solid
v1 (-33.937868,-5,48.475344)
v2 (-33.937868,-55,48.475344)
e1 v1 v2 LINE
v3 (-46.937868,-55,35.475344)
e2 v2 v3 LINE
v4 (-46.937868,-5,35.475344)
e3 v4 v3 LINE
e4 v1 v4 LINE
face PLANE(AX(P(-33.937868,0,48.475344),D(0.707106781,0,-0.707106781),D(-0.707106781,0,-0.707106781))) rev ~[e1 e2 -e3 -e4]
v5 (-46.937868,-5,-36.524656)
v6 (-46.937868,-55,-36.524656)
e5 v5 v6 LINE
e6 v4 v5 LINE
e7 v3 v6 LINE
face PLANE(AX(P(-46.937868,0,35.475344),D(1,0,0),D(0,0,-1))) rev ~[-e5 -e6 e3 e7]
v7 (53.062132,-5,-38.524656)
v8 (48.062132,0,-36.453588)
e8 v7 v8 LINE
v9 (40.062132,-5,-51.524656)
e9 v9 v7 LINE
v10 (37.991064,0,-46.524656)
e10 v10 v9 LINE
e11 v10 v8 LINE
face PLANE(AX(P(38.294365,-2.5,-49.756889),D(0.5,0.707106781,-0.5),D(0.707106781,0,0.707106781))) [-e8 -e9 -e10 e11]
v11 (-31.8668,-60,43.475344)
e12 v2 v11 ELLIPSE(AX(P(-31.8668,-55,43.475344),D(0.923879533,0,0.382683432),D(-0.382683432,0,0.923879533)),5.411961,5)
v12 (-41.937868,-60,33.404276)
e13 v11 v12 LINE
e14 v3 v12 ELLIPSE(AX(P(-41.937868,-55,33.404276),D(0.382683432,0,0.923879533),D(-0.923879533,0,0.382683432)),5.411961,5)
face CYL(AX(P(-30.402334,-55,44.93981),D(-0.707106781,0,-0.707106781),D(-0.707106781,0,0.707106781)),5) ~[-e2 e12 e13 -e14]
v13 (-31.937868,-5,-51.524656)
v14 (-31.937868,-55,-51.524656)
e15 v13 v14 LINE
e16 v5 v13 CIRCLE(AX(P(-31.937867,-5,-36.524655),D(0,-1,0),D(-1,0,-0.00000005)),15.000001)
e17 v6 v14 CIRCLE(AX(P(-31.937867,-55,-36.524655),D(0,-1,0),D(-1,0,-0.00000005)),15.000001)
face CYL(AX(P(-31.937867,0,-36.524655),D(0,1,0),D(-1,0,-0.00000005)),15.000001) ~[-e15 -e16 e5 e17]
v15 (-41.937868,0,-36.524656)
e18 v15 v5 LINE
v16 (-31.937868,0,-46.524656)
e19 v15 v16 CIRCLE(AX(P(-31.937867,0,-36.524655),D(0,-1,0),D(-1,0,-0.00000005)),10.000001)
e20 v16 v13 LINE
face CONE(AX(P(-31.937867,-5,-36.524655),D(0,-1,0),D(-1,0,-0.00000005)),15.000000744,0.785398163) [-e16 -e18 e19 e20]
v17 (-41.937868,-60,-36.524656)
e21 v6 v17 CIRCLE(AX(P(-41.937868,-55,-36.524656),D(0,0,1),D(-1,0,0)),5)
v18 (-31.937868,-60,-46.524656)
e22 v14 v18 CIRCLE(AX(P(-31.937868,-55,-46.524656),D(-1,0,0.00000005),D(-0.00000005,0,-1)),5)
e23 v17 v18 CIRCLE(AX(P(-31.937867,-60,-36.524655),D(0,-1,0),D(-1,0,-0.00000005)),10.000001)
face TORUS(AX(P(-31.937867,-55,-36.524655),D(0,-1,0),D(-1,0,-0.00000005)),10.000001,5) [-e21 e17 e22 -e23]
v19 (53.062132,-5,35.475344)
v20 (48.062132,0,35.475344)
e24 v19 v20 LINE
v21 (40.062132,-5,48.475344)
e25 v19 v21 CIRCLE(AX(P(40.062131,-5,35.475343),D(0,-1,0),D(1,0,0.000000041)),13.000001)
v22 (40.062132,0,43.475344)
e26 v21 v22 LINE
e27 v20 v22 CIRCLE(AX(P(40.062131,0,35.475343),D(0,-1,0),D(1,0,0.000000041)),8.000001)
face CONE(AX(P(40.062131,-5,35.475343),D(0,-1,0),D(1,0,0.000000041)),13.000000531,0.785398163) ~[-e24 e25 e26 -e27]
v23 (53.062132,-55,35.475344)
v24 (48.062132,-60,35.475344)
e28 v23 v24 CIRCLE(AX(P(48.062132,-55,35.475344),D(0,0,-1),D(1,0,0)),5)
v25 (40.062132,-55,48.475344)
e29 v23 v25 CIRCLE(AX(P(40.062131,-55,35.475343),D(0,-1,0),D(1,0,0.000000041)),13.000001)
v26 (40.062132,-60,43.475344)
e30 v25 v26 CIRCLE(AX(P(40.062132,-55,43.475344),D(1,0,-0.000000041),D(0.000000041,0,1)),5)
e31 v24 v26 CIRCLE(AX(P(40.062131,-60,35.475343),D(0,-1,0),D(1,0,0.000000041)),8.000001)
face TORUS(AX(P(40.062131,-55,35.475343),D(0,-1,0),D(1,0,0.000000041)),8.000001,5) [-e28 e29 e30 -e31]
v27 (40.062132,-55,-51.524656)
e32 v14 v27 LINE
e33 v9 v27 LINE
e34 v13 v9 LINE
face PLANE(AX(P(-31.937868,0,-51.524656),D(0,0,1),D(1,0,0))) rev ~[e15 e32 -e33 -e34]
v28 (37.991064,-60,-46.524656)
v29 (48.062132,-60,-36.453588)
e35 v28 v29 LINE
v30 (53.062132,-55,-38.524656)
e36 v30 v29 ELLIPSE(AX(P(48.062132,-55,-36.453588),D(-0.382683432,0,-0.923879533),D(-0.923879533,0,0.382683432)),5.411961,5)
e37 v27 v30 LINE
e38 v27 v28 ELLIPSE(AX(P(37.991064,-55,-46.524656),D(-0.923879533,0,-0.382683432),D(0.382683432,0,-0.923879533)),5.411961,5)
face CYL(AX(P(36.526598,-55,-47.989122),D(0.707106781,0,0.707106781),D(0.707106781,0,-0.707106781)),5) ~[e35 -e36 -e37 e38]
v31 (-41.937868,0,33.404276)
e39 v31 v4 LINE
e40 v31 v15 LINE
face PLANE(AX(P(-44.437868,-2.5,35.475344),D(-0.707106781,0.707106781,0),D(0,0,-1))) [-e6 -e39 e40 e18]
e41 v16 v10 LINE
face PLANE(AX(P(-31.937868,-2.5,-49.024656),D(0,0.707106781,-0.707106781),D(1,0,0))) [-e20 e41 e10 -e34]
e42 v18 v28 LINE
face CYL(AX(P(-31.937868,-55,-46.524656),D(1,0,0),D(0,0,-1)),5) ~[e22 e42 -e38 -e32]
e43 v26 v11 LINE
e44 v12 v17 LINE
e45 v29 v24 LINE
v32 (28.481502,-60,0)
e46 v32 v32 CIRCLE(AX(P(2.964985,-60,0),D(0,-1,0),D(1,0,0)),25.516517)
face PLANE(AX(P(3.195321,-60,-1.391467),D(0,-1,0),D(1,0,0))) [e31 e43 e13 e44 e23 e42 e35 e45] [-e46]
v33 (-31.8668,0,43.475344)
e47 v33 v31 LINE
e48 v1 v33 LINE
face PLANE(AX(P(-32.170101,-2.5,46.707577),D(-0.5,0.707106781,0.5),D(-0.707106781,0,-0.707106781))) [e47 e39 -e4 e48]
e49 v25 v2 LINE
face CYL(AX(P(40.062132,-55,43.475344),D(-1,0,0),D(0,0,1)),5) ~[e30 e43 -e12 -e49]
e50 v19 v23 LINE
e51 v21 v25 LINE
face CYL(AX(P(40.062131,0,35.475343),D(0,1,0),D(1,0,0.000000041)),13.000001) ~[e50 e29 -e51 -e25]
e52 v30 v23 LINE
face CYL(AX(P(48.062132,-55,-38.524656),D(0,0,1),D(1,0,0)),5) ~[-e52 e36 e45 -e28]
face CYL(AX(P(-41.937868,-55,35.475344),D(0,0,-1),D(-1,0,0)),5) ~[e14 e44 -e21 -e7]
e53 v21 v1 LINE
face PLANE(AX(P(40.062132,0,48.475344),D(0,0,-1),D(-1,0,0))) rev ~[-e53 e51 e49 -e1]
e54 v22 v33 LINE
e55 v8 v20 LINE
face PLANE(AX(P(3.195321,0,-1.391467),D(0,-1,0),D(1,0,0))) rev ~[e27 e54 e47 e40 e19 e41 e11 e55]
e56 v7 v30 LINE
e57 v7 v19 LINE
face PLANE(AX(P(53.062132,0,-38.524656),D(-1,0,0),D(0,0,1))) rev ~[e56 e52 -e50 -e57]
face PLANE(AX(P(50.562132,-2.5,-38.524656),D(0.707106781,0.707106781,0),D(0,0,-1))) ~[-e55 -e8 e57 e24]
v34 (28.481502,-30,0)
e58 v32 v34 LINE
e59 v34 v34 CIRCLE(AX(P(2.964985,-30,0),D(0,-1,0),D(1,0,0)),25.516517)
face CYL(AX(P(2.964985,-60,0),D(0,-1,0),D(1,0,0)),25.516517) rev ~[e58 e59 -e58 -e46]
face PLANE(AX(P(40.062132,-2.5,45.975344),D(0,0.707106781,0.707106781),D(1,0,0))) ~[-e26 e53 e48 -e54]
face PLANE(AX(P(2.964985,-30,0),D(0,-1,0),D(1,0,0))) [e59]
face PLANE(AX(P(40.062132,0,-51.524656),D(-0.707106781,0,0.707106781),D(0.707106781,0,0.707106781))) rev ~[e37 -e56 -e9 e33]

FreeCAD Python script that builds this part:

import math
import FreeCAD as App
import Part
import Sketcher
Q = App.Units.Quantity


def edges_at(feature, points):
    """Names of the edges that pass closest to the given points."""
    edges = feature.Shape.Edges
    near = lambda p: min(range(len(edges)), key=lambda i: edges[i].distToShape(Part.Vertex(*p))[0])
    return sorted({f"Edge{near(p) + 1}" for p in points})

doc = App.newDocument("Part")
body = doc.addObject("PartDesign::Body", "Body")

sketch1 = doc.addObject("Sketcher::SketchObject", "Sketch")
body.addObject(sketch1)
sketch1.AttachmentSupport = (doc.XZ_Plane, [""])
sketch1.MapMode = "FlatFace"
sketch1.addGeometry([
    Part.LineSegment(App.Vector(40, 48, 0), App.Vector(-34, 48, 0)),
    Part.LineSegment(App.Vector(-34, 48, 0), App.Vector(-47, 35, 0)),
    Part.LineSegment(App.Vector(-47, 35, 0), App.Vector(-47, -37, 0)),
    Part.ArcOfCircle(Part.Circle(App.Vector(-32, -37, 0), App.Vector(0, 0, 1), 15), math.radians(-180), math.radians(-90)),
    Part.LineSegment(App.Vector(-32, -52, 0), App.Vector(40, -52, 0)),
    Part.LineSegment(App.Vector(40, -52, 0), App.Vector(53, -39, 0)),
    Part.LineSegment(App.Vector(53, -39, 0), App.Vector(53, 35, 0)),
    Part.ArcOfCircle(Part.Circle(App.Vector(40, 35, 0), App.Vector(0, 0, 1), 13), math.radians(0), math.radians(90)),
], False)
sketch1.addConstraint([
    Sketcher.Constraint("Coincident", 0, 2, 1, 1),
    Sketcher.Constraint("Coincident", 1, 2, 2, 1),
    Sketcher.Constraint("Tangent", 2, 2, 3, 1),
    Sketcher.Constraint("Tangent", 3, 2, 4, 1),
    Sketcher.Constraint("Coincident", 4, 2, 5, 1),
    Sketcher.Constraint("Coincident", 5, 2, 6, 1),
    Sketcher.Constraint("Tangent", 6, 2, 7, 1),
    Sketcher.Constraint("Tangent", 7, 2, 0, 1),
    Sketcher.Constraint("Horizontal", 0),
    Sketcher.Constraint("Vertical", 2),
    Sketcher.Constraint("Horizontal", 4),
    Sketcher.Constraint("Vertical", 6),
    Sketcher.Constraint("Parallel", 1, 5),
    Sketcher.Constraint("Horizontal", 7, 3, 1, 2),
    Sketcher.Constraint("Vertical", 7, 3, 4, 2),
    Sketcher.Constraint("Equal", 4, 2),
    Sketcher.Constraint("Equal", 0, 6),
    Sketcher.Constraint("Radius", 3, Q("15.000001 mm")),
    Sketcher.Constraint("Radius", 7, Q("13.000001 mm")),
    Sketcher.Constraint("DistanceX", 0, 2, 0, 1, Q("74 mm")),
    Sketcher.Constraint("DistanceX", -1, 1, 7, 3, Q("40.062131 mm")),
    Sketcher.Constraint("DistanceY", 3, 3, -1, 1, Q("36.524655 mm")),
])
pad1 = doc.addObject("PartDesign::Pad", "Pad")
body.addObject(pad1)
pad1.Profile = sketch1
pad1.Length = 60
doc.recompute()

fillet = doc.addObject("PartDesign::Fillet", "Fillet")
body.addObject(fillet)
fillet.Base = (pad1, edges_at(pad1, [
    (3.062, -60, 48.475),
    (-40.438, -60, 41.975),
    (-46.938, -60, -0.525),
    (-42.544, -60, -47.131),
    (4.062, -60, -51.525),
    (46.562, -60, -45.025),
    (53.062, -60, -1.525),
    (49.255, -60, 44.668),
]))
fillet.Radius = 5
doc.recompute()

chamfer = doc.addObject("PartDesign::Chamfer", "Chamfer")
body.addObject(chamfer)
chamfer.Base = (fillet, edges_at(fillet, [
    (3.062, 0, 48.475),
    (-40.438, 0, 41.975),
    (-46.938, 0, -0.525),
    (-42.544, 0, -47.131),
    (4.062, 0, -51.525),
    (46.562, 0, -45.025),
    (53.062, 0, -1.525),
    (49.255, 0, 44.668),
]))
chamfer.Size = 5

sketch2 = doc.addObject("Sketcher::SketchObject", "Sketch001")
body.addObject(sketch2)
sketch2.AttachmentSupport = (doc.XZ_Plane, [""])
sketch2.MapMode = "FlatFace"
sketch2.AttachmentOffset = App.Placement(App.Vector(0, 0, 60), App.Rotation())
sketch2.addGeometry(Part.Circle(App.Vector(3, 0, 0), App.Vector(0, 0, 1), 26), False)
sketch2.addConstraint([
    Sketcher.Constraint("PointOnObject", 0, 3, -1),
    Sketcher.Constraint("Diameter", 0, Q("51.033034 mm")),
    Sketcher.Constraint("DistanceX", -1, 1, 0, 3, Q("2.964985 mm")),
])
pocket1 = doc.addObject("PartDesign::Pocket", "Pocket")
body.addObject(pocket1)
pocket1.Profile = sketch2
pocket1.Length = 30

doc.recompute()
